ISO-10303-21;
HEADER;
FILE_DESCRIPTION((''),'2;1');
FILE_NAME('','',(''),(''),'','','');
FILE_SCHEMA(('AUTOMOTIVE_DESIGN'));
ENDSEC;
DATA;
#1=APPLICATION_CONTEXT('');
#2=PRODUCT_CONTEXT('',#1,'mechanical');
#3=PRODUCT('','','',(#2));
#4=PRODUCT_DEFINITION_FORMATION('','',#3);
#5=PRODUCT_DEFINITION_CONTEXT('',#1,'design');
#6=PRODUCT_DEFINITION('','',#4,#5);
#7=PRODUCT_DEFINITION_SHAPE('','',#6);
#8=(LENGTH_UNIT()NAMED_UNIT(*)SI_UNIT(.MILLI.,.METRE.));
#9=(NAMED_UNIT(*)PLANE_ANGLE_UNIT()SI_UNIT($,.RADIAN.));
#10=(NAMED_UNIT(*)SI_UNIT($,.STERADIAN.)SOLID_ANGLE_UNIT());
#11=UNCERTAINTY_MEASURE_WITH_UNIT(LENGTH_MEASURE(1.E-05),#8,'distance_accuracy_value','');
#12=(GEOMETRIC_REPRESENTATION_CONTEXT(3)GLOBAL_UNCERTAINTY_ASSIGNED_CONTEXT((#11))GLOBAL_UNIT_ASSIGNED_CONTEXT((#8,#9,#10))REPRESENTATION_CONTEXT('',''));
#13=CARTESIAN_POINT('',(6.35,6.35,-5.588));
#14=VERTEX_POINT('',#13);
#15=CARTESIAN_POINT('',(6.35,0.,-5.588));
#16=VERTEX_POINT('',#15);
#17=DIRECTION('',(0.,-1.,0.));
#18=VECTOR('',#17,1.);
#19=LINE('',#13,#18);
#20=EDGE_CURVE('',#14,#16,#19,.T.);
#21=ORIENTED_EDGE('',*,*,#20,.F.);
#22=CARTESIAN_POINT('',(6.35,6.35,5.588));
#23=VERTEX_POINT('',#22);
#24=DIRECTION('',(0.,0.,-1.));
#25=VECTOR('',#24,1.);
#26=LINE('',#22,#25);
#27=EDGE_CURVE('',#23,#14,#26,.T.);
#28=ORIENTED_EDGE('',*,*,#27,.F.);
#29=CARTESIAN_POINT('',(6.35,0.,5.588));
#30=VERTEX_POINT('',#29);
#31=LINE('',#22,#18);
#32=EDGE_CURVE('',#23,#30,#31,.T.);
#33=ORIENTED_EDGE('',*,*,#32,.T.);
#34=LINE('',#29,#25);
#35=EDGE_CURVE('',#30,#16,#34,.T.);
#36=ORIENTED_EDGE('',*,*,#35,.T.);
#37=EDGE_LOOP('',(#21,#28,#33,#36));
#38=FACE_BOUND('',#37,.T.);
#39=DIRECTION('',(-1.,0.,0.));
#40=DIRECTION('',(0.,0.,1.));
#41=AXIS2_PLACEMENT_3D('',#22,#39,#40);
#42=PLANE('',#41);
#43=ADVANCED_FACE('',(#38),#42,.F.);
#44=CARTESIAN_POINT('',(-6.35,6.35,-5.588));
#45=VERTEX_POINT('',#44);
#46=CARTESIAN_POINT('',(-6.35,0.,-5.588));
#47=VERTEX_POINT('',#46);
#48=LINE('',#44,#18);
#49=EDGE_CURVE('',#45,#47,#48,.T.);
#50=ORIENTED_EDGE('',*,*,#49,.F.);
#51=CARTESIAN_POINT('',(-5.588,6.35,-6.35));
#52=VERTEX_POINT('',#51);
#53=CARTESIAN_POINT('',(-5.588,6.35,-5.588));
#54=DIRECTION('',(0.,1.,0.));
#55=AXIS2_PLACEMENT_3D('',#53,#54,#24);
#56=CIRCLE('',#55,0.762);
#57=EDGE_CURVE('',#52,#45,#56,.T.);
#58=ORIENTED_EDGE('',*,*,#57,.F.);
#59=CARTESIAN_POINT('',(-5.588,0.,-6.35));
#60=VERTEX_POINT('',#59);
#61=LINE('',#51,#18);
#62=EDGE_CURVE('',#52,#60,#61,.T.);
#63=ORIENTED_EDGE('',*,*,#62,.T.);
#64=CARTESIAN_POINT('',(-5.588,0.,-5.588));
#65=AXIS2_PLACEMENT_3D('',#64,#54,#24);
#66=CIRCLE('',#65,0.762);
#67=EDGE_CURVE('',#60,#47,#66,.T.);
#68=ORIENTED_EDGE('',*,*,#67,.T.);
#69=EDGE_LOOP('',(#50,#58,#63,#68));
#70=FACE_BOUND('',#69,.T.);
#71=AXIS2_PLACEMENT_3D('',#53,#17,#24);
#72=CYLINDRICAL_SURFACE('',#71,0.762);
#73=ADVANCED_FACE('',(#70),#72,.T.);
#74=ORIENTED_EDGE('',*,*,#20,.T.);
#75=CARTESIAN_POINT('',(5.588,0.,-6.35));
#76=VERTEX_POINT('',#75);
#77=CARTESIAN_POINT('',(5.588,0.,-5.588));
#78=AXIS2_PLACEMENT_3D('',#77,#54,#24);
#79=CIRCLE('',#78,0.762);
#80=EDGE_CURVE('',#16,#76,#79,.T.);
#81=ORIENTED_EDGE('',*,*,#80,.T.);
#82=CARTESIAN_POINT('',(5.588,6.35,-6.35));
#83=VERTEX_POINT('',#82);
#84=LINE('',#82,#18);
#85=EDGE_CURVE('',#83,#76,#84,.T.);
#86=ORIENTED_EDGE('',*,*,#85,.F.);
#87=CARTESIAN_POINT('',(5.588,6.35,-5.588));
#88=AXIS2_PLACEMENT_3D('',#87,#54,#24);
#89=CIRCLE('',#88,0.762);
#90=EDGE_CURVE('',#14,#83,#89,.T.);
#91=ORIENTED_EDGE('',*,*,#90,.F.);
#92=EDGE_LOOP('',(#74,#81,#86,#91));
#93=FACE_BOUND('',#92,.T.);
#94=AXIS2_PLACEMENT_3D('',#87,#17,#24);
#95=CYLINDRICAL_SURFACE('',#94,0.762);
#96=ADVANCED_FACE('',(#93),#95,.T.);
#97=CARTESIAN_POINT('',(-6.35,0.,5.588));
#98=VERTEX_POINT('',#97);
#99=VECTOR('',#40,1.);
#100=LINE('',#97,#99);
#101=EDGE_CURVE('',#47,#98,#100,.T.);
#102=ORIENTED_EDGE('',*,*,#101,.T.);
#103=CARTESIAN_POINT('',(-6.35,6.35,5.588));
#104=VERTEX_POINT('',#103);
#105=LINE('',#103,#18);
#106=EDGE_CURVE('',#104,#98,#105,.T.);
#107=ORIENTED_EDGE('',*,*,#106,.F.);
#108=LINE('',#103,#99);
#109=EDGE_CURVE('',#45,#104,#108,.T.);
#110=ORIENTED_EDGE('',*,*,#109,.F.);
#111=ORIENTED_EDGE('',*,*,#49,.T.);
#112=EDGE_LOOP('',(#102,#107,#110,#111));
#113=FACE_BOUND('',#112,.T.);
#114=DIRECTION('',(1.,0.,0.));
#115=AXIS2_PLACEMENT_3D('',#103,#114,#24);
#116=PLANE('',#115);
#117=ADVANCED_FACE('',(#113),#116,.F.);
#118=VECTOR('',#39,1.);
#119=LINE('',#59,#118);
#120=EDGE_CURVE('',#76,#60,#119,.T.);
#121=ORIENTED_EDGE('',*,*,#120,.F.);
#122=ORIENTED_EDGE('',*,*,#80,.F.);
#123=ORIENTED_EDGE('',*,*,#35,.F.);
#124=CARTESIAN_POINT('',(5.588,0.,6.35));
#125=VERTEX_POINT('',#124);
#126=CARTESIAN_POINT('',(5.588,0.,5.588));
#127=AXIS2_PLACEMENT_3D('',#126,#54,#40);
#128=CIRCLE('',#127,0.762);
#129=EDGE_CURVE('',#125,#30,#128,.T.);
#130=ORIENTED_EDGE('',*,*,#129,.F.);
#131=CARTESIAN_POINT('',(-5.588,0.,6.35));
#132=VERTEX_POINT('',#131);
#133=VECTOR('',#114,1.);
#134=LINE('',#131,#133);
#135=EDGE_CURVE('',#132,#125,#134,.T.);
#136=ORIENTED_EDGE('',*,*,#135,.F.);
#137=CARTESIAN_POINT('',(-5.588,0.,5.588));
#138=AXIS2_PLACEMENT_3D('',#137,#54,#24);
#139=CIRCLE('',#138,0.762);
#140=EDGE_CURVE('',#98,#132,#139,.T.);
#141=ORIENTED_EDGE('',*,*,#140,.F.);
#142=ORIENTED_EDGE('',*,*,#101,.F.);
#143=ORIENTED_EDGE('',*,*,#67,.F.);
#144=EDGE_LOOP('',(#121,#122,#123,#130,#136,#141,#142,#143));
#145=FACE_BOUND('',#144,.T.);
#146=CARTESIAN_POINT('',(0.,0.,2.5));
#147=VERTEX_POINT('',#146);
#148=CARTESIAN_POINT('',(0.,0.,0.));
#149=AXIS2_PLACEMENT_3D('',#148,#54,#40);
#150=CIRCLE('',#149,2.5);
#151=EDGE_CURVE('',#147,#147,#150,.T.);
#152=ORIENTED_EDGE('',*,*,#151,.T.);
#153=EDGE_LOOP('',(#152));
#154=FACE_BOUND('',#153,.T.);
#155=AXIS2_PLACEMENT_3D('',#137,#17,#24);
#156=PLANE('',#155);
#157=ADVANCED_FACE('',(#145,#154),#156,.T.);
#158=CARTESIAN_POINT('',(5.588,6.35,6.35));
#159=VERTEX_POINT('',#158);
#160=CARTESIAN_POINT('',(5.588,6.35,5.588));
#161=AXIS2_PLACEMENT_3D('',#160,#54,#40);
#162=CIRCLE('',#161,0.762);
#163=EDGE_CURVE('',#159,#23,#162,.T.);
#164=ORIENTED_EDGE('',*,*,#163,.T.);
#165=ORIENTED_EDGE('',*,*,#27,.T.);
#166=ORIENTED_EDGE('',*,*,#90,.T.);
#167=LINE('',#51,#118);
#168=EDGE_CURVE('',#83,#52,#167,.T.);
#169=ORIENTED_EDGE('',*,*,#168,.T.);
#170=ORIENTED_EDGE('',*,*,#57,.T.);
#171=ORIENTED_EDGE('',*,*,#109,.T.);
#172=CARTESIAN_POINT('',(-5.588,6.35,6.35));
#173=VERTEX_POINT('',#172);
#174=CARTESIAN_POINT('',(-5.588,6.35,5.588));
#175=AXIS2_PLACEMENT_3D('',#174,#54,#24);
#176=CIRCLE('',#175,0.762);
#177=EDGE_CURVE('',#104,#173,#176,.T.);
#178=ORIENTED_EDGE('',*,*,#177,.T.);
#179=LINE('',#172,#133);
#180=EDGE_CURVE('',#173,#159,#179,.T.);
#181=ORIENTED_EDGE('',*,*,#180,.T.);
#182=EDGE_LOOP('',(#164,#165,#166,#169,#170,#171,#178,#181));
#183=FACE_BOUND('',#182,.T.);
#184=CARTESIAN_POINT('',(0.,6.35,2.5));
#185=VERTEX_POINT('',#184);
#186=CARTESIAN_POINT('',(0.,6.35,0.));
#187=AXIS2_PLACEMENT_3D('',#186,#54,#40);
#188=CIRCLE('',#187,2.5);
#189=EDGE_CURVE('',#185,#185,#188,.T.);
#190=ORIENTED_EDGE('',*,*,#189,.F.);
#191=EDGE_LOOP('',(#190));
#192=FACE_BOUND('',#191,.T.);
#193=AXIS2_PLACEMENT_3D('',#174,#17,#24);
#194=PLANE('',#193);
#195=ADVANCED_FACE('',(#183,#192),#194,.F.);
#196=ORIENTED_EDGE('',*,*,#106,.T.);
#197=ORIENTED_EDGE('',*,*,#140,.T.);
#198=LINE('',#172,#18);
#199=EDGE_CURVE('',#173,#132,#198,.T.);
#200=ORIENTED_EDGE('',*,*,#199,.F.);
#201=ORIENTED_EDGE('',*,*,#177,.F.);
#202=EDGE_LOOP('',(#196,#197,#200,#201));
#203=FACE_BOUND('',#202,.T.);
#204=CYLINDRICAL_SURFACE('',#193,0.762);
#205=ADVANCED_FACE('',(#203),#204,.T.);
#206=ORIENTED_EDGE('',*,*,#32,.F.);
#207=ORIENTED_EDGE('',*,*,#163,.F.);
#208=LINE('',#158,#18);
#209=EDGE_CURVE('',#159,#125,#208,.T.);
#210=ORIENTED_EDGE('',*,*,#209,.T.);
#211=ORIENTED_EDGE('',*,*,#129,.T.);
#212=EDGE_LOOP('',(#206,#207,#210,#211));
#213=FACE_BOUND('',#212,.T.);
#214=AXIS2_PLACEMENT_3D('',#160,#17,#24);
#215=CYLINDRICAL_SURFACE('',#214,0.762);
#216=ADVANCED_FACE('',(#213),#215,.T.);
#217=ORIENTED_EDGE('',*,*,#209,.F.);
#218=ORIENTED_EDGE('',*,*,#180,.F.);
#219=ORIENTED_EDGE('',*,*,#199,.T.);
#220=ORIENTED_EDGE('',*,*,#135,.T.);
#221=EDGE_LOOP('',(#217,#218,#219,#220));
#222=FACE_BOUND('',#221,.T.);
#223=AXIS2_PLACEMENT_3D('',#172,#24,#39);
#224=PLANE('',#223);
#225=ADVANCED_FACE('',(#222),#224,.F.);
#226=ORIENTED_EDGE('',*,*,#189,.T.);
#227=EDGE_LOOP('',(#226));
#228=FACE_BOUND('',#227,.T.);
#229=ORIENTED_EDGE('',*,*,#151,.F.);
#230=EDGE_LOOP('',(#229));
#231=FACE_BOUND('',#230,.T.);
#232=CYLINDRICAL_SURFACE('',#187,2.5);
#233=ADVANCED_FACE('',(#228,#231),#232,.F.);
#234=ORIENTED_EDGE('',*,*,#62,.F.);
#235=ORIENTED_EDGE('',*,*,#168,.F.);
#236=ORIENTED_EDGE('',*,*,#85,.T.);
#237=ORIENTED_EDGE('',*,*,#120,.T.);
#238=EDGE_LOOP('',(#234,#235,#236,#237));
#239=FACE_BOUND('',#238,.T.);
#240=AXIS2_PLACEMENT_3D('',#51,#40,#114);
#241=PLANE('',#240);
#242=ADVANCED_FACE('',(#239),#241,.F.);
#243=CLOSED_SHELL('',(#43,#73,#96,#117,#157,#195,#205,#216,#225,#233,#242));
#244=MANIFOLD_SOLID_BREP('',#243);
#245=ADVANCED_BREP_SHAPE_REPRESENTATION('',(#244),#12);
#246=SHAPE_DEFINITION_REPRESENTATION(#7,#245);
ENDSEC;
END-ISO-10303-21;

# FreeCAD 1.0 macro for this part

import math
import FreeCAD as App
import Part
import Sketcher

V = App.Vector
Q = App.Units.Quantity

doc = App.newDocument("Part")
params = doc.addObject("Spreadsheet::Sheet", "Params")
for row, (alias, value) in enumerate([
    ("sketch1_radius", "0.03 in"),
    ("sketch1_width", "0.44 in"),
    ("pad1_length", "0.25 in"),
    ("hole_diameter", "5 mm"),
], start=1):
    params.set(f"A{row}", alias)
    params.set(f"B{row}", "=" + value)
    params.setAlias(f"B{row}", alias)

body = doc.addObject("PartDesign::Body", "Body")

# Sketch on XZ plane
sketch1 = body.newObject("Sketcher::SketchObject", "Sketch")
sketch1.AttachmentSupport = (doc.getObject("XZ_Plane"), [""])
sketch1.MapMode = "FlatFace"
sketch1.addGeometry([
    Part.LineSegment(V(-5.6, 6.3, 0), V(5.6, 6.3, 0)),  # 0
    Part.ArcOfCircle(Part.Circle(V(5.6, 5.6, 0), V(0, 0, 1), 0.8), math.radians(0), math.radians(90)),  # 1
    Part.LineSegment(V(6.3, 5.6, 0), V(6.3, -5.6, 0)),  # 2
    Part.ArcOfCircle(Part.Circle(V(5.6, -5.6, 0), V(0, 0, 1), 0.8), math.radians(-90), math.radians(0)),  # 3
    Part.LineSegment(V(5.6, -6.3, 0), V(-5.6, -6.3, 0)),  # 4
    Part.ArcOfCircle(Part.Circle(V(-5.6, -5.6, 0), V(0, 0, 1), 0.8), math.radians(-180), math.radians(-90)),  # 5
    Part.LineSegment(V(-6.3, -5.6, 0), V(-6.3, 5.6, 0)),  # 6
    Part.ArcOfCircle(Part.Circle(V(-5.6, 5.6, 0), V(0, 0, 1), 0.8), math.radians(90), math.radians(180)),  # 7
], False)
sketch1.addConstraint([
    Sketcher.Constraint("Tangent", 0, 2, 1, 2),
    Sketcher.Constraint("Tangent", 1, 1, 2, 1),
    Sketcher.Constraint("Tangent", 2, 2, 3, 2),
    Sketcher.Constraint("Tangent", 3, 1, 4, 1),
    Sketcher.Constraint("Tangent", 4, 2, 5, 2),
    Sketcher.Constraint("Tangent", 5, 1, 6, 1),
    Sketcher.Constraint("Tangent", 6, 2, 7, 2),
    Sketcher.Constraint("Tangent", 7, 1, 0, 1),
    Sketcher.Constraint("Horizontal", 0),
    Sketcher.Constraint("Vertical", 2),
    Sketcher.Constraint("Horizontal", 4),
    Sketcher.Constraint("Vertical", 6),
    Sketcher.Constraint("Equal", 1, 3),
    Sketcher.Constraint("Equal", 3, 5),
    Sketcher.Constraint("Equal", 5, 7),
    Sketcher.Constraint("Symmetric", 1, 3, 5, 3, -1, 1),
    Sketcher.Constraint("Equal", 4, 2),
    Sketcher.Constraint("Radius", 1, Q("0.03 in")),
    Sketcher.Constraint("DistanceX", 0, 1, 0, 2, Q("0.44 in")),
])
sketch1.setExpression("Constraints[17]", "Params.sketch1_radius")
sketch1.setExpression("Constraints[18]", "Params.sketch1_width")
pad1 = body.newObject("PartDesign::Pad", "Pad")
pad1.Profile = sketch1
pad1.setExpression("Length", "Params.pad1_length")
pad1.Reversed = True

# Sketch on XZ plane
sketch2 = body.newObject("Sketcher::SketchObject", "Sketch001")
sketch2.AttachmentSupport = (doc.getObject("XZ_Plane"), [""])
sketch2.MapMode = "FlatFace"
sketch2.AttachmentOffset = App.Placement(V(0, 0, -0.25 * 25.4), App.Rotation())
sketch2.addGeometry(Part.Circle(V(0, 0, 0), V(0, 0, 1), 2.5), False)
sketch2.addConstraint([
    Sketcher.Constraint("Coincident", 0, 3, -1, 1),
    Sketcher.Constraint("Diameter", 0, Q("5 mm")),
])
doc.recompute()
hole = body.newObject("PartDesign::Hole", "Hole")
hole.Profile = sketch2
hole.ThreadType = "None"
hole.setExpression("Diameter", "Params.hole_diameter")
hole.DepthType = "ThroughAll"
hole.Reversed = True

doc.recompute()
